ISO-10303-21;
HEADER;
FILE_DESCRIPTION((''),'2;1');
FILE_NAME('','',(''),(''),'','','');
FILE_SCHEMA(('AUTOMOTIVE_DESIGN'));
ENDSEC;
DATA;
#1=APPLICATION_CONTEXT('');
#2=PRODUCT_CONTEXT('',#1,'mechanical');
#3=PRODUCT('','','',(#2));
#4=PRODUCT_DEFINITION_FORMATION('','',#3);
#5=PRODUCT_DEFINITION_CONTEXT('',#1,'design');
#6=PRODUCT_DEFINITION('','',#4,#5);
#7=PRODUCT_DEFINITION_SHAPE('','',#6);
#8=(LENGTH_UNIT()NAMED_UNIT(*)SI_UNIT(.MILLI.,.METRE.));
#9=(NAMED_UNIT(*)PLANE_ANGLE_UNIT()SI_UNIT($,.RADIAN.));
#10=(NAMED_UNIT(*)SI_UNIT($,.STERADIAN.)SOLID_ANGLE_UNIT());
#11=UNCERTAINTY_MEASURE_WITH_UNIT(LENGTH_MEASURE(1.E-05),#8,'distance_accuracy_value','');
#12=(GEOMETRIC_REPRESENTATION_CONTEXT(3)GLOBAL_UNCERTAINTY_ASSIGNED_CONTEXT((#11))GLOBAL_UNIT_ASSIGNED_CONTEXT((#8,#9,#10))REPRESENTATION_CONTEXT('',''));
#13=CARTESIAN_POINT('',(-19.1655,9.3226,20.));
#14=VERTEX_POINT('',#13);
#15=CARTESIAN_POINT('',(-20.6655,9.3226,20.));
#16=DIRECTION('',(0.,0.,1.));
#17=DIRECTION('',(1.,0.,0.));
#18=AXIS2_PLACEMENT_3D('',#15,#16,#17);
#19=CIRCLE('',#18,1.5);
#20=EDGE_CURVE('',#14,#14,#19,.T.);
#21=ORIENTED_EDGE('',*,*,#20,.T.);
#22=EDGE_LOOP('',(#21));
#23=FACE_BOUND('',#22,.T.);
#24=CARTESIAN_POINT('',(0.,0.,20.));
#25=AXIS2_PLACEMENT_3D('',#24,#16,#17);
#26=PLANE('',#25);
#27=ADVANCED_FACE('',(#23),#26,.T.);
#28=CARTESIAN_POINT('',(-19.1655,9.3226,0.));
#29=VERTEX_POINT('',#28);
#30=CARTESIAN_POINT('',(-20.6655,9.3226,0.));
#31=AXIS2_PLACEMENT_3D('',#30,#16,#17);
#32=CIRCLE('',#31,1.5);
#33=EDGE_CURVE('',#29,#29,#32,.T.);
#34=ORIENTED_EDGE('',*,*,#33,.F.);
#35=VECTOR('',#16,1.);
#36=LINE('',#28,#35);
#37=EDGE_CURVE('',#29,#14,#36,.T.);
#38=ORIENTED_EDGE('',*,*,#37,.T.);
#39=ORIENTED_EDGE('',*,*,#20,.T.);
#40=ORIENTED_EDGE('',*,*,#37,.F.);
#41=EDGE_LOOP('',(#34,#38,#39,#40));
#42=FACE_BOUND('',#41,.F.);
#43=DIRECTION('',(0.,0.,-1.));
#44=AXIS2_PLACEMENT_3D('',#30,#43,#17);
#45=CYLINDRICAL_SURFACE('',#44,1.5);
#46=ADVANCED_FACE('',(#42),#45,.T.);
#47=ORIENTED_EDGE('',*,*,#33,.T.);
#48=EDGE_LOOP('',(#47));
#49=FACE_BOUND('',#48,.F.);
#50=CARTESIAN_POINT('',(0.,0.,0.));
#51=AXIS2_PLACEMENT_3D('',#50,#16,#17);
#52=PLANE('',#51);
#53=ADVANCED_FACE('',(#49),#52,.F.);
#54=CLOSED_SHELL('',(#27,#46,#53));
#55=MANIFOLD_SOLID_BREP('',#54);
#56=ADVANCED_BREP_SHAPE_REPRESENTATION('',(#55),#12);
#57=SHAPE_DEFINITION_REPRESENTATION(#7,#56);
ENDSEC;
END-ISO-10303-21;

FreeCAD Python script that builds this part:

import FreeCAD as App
import Part
import Sketcher

V = App.Vector

doc = App.newDocument("Part")
params = doc.addObject("Spreadsheet::Sheet", "Params")
for row, (alias, value) in enumerate([
    ("sketch1_diameter", "3 mm"),
    ("pad1_length", "20 mm"),
], start=1):
    params.set(f"A{row}", alias)
    params.set(f"B{row}", "=" + value)
    params.setAlias(f"B{row}", alias)

body = doc.addObject("PartDesign::Body", "Body")

# Sketch on XY plane
sketch1 = doc.addObject("Sketcher::SketchObject", "Sketch")
body.addObject(sketch1)
sketch1.AttachmentSupport = (doc.XY_Plane, [""])
sketch1.MapMode = "FlatFace"
sketch1.addGeometry(Part.Circle(V(-20.7, 9.3, 0), V(0, 0, 1), 1.5), False)
sketch1.addConstraint([
    Sketcher.Constraint("Diameter", 0, 3.0),
    Sketcher.Constraint("DistanceX", 0, 3, -1, 1, 20.6655),
    Sketcher.Constraint("DistanceY", -1, 1, 0, 3, 9.3226),
])
sketch1.setExpression("Constraints[0]", "Params.sketch1_diameter")
pad1 = doc.addObject("PartDesign::Pad", "Pad")
body.addObject(pad1)
pad1.Profile = sketch1
pad1.setExpression("Length", "Params.pad1_length")

doc.recompute()
